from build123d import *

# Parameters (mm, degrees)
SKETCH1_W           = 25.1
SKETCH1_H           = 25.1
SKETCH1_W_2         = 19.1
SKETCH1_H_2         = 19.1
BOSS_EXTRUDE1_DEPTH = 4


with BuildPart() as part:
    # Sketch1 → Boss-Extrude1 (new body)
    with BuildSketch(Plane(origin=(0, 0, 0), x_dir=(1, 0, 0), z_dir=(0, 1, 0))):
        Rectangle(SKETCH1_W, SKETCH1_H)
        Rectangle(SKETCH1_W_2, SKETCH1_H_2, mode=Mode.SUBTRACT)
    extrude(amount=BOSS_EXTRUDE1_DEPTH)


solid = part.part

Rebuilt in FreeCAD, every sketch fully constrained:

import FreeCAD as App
import Part
import Sketcher

V = App.Vector
Q = App.Units.Quantity


def add_polygon(sketch, points):
    """Adds a closed chain of lines whose ends are joined by coincident constraints."""
    first, n = sketch.GeometryCount, len(points)
    for a, b in zip(points, points[1:] + points[:1]):
        sketch.addGeometry(Part.LineSegment(App.Vector(*a, 0), App.Vector(*b, 0)), False)
    for i in range(n):
        sketch.addConstraint(Sketcher.Constraint("Coincident", first + i, 2, first + (i + 1) % n, 1))

doc = App.newDocument("Part")
body = doc.addObject("PartDesign::Body", "Body")

# Sketch on XZ plane
sketch1 = body.newObject("Sketcher::SketchObject", "Sketch")
sketch1.AttachmentSupport = (doc.getObject("XZ_Plane"), [""])
sketch1.MapMode = "FlatFace"
add_polygon(sketch1, [(-13, -13), (-13, 13), (13, 13), (13, -13)])  # lines 0-3
add_polygon(sketch1, [(10, 10), (-10, 10), (-10, -10), (10, -10)])  # lines 4-7
sketch1.addConstraint(Sketcher.Constraint("Vertical", 0))
sketch1.addConstraint(Sketcher.Constraint("Horizontal", 1))
sketch1.addConstraint(Sketcher.Constraint("Vertical", 2))
sketch1.addConstraint(Sketcher.Constraint("Horizontal", 3))
sketch1.addConstraint(Sketcher.Constraint("Horizontal", 4))
sketch1.addConstraint(Sketcher.Constraint("Vertical", 5))
sketch1.addConstraint(Sketcher.Constraint("Horizontal", 6))
sketch1.addConstraint(Sketcher.Constraint("Vertical", 7))
sketch1.addConstraint(Sketcher.Constraint("Symmetric", 0, 2, 2, 2, -1, 1))
sketch1.addConstraint(Sketcher.Constraint("Symmetric", 4, 2, 6, 2, -1, 1))
sketch1.addConstraint(Sketcher.Constraint("Equal", 3, 0))
sketch1.addConstraint(Sketcher.Constraint("Equal", 6, 5))
sketch1.addConstraint(Sketcher.Constraint("DistanceX", 1, 1, 1, 2, Q("25.1 mm")))
sketch1.addConstraint(Sketcher.Constraint("DistanceX", 4, 2, 4, 1, Q("19.1 mm")))
pad1 = body.newObject("PartDesign::Pad", "Pad")
pad1.Profile = sketch1
pad1.Length = 4
pad1.Reversed = True

doc.recompute()
